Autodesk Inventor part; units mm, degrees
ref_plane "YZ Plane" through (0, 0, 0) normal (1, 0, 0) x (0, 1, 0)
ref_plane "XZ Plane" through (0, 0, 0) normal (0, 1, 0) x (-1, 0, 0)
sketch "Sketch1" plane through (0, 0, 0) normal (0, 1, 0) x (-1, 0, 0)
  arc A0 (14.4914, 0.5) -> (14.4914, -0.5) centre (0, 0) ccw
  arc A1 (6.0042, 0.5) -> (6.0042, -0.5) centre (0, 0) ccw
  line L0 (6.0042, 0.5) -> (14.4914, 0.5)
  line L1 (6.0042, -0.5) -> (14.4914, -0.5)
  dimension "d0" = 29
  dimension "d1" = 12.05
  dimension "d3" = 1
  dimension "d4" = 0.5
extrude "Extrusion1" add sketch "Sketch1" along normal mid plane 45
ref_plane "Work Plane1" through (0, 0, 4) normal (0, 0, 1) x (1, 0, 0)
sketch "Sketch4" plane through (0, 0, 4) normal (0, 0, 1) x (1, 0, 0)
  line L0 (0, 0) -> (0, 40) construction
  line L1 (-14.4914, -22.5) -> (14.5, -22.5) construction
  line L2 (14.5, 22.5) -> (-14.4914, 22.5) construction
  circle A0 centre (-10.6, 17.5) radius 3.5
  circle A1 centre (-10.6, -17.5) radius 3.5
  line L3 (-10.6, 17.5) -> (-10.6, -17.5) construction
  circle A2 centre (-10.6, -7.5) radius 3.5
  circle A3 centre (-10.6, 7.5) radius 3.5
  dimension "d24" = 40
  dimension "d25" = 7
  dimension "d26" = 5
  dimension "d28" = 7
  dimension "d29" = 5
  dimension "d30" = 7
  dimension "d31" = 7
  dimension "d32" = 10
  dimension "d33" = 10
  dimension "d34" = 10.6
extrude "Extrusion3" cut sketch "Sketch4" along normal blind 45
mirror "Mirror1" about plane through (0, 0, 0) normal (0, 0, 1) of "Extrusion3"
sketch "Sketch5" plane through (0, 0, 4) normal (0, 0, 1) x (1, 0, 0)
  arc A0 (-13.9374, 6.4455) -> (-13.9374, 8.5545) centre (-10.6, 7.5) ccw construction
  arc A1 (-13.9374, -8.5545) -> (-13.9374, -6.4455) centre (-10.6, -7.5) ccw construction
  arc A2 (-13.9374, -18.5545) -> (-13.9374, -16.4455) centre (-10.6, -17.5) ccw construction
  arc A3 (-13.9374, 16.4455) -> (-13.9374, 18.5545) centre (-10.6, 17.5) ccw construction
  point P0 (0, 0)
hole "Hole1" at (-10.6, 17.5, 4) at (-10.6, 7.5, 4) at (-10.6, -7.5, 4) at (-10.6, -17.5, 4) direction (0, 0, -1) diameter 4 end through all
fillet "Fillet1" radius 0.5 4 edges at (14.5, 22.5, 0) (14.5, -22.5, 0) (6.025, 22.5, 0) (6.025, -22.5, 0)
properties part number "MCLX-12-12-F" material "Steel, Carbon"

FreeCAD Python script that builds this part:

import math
import FreeCAD as App
import Part
import Sketcher
from FreeCAD import Vector
Q = App.Units.Quantity


def edges_at(feature, points):
    """Names of the edges that pass closest to the given points."""
    edges = feature.Shape.Edges
    near = lambda p: min(range(len(edges)), key=lambda i: edges[i].distToShape(Part.Vertex(*p))[0])
    return sorted({f"Edge{near(p) + 1}" for p in points})

doc = App.newDocument("Part")
body = doc.addObject("PartDesign::Body", "Body")

# Sketch on XZ plane
sketch1 = body.newObject("Sketcher::SketchObject", "Sketch")
sketch1.AttachmentSupport = (doc.getObject("XZ_Plane"), [""])
sketch1.MapMode = "FlatFace"
sketch1.addGeometry(Part.LineSegment(Vector(-6, 0.5, 0), Vector(-14.5, 0.5, 0)), False)
sketch1.addGeometry(Part.ArcOfCircle(Part.Circle(Vector(0, 0, 0), Vector(0, 0, 1), 14.5), math.radians(-178), math.radians(178)), False)
sketch1.addGeometry(Part.LineSegment(Vector(-14.5, -0.5, 0), Vector(-6, -0.5, 0)), False)
sketch1.addGeometry(Part.ArcOfCircle(Part.Circle(Vector(0, 0, 0), Vector(0, 0, 1), 6), math.radians(-175), math.radians(175)), False)
sketch1.addConstraint(Sketcher.Constraint("Coincident", 0, 2, 1, 2))
sketch1.addConstraint(Sketcher.Constraint("Coincident", 1, 1, 2, 1))
sketch1.addConstraint(Sketcher.Constraint("Coincident", 2, 2, 3, 1))
sketch1.addConstraint(Sketcher.Constraint("Coincident", 3, 2, 0, 1))
sketch1.addConstraint(Sketcher.Constraint("Horizontal", 0))
sketch1.addConstraint(Sketcher.Constraint("Horizontal", 2))
sketch1.addConstraint(Sketcher.Constraint("Coincident", 1, 3, -1, 1))
sketch1.addConstraint(Sketcher.Constraint("Coincident", 3, 3, -1, 1))
sketch1.addConstraint(Sketcher.Constraint("Vertical", 0, 2, 1, 1))
sketch1.addConstraint(Sketcher.Constraint("Radius", 1, Q("14.5 mm")))
sketch1.addConstraint(Sketcher.Constraint("Radius", 3, Q("6.025 mm")))
sketch1.addConstraint(Sketcher.Constraint("DistanceY", 1, 1, 0, 2, Q("1 mm")))
pad1 = body.newObject("PartDesign::Pad", "Pad")
pad1.Profile = sketch1
pad1.Length = 45
pad1.Midplane = True

# Sketch on XY plane
sketch2 = body.newObject("Sketcher::SketchObject", "Sketch001")
sketch2.AttachmentSupport = (doc.getObject("XY_Plane"), [""])
sketch2.MapMode = "FlatFace"
sketch2.AttachmentOffset = App.Placement(Vector(0, 0, 4), App.Rotation())
sketch2.addGeometry(Part.Circle(Vector(-10.6, 17.5, 0), Vector(0, 0, 1), 3.5), False)
sketch2.addGeometry(Part.Circle(Vector(-10.6, -17.5, 0), Vector(0, 0, 1), 3.5), False)
sketch2.addGeometry(Part.Circle(Vector(-10.6, -7.5, 0), Vector(0, 0, 1), 3.5), False)
sketch2.addGeometry(Part.Circle(Vector(-10.6, 7.5, 0), Vector(0, 0, 1), 3.5), False)
sketch2.addConstraint(Sketcher.Constraint("Equal", 0, 1))
sketch2.addConstraint(Sketcher.Constraint("Equal", 1, 2))
sketch2.addConstraint(Sketcher.Constraint("Equal", 2, 3))
sketch2.addConstraint(Sketcher.Constraint("Symmetric", 0, 3, 1, 3, -1))
sketch2.addConstraint(Sketcher.Constraint("Symmetric", 2, 3, 3, 3, -1))
sketch2.addConstraint(Sketcher.Constraint("Vertical", 1, 3, 2, 3))
sketch2.addConstraint(Sketcher.Constraint("Diameter", 0, Q("7 mm")))
sketch2.addConstraint(Sketcher.Constraint("DistanceY", 1, 3, 2, 3, Q("10 mm")))
sketch2.addConstraint(Sketcher.Constraint("DistanceX", 0, 3, -1, 1, Q("10.6 mm")))
sketch2.addConstraint(Sketcher.Constraint("DistanceY", 1, 3, 0, 3, Q("35 mm")))
pocket1 = body.newObject("PartDesign::Pocket", "Pocket")
pocket1.Profile = sketch2
pocket1.Length = 45
pocket1.Reversed = True
doc.recompute()

mirrored = body.newObject("PartDesign::Mirrored", "Mirrored")
mirrored.Originals = [pocket1]
mirrored.MirrorPlane = (doc.getObject("XY_Plane"), [""])
body.Tip = mirrored

# Sketch on XY plane
sketch3 = body.newObject("Sketcher::SketchObject", "Sketch002")
sketch3.AttachmentSupport = (doc.getObject("XY_Plane"), [""])
sketch3.MapMode = "FlatFace"
sketch3.AttachmentOffset = App.Placement(Vector(0, 0, 4), App.Rotation())
sketch3.addGeometry(Part.Circle(Vector(-10.6, 17.5, 0), Vector(0, 0, 1), 2), False)
sketch3.addGeometry(Part.Circle(Vector(-10.6, 7.5, 0), Vector(0, 0, 1), 2), False)
sketch3.addGeometry(Part.Circle(Vector(-10.6, -7.5, 0), Vector(0, 0, 1), 2), False)
sketch3.addGeometry(Part.Circle(Vector(-10.6, -17.5, 0), Vector(0, 0, 1), 2), False)
sketch3.addConstraint(Sketcher.Constraint("Equal", 0, 1))
sketch3.addConstraint(Sketcher.Constraint("Equal", 1, 2))
sketch3.addConstraint(Sketcher.Constraint("Equal", 2, 3))
sketch3.addConstraint(Sketcher.Constraint("Symmetric", 1, 3, 2, 3, -1))
sketch3.addConstraint(Sketcher.Constraint("Symmetric", 0, 3, 3, 3, -1))
sketch3.addConstraint(Sketcher.Constraint("Vertical", 0, 3, 1, 3))
sketch3.addConstraint(Sketcher.Constraint("Diameter", 0, Q("4 mm")))
sketch3.addConstraint(Sketcher.Constraint("DistanceY", 1, 3, 0, 3, Q("10 mm")))
sketch3.addConstraint(Sketcher.Constraint("DistanceY", 2, 3, 1, 3, Q("15 mm")))
sketch3.addConstraint(Sketcher.Constraint("DistanceX", 0, 3, -1, 1, Q("10.6 mm")))
doc.recompute()
hole = body.newObject("PartDesign::Hole", "Hole")
hole.Profile = sketch3
hole.ThreadType = "None"
hole.Diameter = 4
hole.DepthType = "ThroughAll"
doc.recompute()

fillet = body.newObject("PartDesign::Fillet", "Fillet")
fillet.Base = (hole, edges_at(hole, [
    (14.5, 22.5, 0),
    (14.5, -22.5, 0),
    (6.025, 22.5, 0),
    (6.025, -22.5, 0),
]))
fillet.Radius = 0.5

doc.recompute()
